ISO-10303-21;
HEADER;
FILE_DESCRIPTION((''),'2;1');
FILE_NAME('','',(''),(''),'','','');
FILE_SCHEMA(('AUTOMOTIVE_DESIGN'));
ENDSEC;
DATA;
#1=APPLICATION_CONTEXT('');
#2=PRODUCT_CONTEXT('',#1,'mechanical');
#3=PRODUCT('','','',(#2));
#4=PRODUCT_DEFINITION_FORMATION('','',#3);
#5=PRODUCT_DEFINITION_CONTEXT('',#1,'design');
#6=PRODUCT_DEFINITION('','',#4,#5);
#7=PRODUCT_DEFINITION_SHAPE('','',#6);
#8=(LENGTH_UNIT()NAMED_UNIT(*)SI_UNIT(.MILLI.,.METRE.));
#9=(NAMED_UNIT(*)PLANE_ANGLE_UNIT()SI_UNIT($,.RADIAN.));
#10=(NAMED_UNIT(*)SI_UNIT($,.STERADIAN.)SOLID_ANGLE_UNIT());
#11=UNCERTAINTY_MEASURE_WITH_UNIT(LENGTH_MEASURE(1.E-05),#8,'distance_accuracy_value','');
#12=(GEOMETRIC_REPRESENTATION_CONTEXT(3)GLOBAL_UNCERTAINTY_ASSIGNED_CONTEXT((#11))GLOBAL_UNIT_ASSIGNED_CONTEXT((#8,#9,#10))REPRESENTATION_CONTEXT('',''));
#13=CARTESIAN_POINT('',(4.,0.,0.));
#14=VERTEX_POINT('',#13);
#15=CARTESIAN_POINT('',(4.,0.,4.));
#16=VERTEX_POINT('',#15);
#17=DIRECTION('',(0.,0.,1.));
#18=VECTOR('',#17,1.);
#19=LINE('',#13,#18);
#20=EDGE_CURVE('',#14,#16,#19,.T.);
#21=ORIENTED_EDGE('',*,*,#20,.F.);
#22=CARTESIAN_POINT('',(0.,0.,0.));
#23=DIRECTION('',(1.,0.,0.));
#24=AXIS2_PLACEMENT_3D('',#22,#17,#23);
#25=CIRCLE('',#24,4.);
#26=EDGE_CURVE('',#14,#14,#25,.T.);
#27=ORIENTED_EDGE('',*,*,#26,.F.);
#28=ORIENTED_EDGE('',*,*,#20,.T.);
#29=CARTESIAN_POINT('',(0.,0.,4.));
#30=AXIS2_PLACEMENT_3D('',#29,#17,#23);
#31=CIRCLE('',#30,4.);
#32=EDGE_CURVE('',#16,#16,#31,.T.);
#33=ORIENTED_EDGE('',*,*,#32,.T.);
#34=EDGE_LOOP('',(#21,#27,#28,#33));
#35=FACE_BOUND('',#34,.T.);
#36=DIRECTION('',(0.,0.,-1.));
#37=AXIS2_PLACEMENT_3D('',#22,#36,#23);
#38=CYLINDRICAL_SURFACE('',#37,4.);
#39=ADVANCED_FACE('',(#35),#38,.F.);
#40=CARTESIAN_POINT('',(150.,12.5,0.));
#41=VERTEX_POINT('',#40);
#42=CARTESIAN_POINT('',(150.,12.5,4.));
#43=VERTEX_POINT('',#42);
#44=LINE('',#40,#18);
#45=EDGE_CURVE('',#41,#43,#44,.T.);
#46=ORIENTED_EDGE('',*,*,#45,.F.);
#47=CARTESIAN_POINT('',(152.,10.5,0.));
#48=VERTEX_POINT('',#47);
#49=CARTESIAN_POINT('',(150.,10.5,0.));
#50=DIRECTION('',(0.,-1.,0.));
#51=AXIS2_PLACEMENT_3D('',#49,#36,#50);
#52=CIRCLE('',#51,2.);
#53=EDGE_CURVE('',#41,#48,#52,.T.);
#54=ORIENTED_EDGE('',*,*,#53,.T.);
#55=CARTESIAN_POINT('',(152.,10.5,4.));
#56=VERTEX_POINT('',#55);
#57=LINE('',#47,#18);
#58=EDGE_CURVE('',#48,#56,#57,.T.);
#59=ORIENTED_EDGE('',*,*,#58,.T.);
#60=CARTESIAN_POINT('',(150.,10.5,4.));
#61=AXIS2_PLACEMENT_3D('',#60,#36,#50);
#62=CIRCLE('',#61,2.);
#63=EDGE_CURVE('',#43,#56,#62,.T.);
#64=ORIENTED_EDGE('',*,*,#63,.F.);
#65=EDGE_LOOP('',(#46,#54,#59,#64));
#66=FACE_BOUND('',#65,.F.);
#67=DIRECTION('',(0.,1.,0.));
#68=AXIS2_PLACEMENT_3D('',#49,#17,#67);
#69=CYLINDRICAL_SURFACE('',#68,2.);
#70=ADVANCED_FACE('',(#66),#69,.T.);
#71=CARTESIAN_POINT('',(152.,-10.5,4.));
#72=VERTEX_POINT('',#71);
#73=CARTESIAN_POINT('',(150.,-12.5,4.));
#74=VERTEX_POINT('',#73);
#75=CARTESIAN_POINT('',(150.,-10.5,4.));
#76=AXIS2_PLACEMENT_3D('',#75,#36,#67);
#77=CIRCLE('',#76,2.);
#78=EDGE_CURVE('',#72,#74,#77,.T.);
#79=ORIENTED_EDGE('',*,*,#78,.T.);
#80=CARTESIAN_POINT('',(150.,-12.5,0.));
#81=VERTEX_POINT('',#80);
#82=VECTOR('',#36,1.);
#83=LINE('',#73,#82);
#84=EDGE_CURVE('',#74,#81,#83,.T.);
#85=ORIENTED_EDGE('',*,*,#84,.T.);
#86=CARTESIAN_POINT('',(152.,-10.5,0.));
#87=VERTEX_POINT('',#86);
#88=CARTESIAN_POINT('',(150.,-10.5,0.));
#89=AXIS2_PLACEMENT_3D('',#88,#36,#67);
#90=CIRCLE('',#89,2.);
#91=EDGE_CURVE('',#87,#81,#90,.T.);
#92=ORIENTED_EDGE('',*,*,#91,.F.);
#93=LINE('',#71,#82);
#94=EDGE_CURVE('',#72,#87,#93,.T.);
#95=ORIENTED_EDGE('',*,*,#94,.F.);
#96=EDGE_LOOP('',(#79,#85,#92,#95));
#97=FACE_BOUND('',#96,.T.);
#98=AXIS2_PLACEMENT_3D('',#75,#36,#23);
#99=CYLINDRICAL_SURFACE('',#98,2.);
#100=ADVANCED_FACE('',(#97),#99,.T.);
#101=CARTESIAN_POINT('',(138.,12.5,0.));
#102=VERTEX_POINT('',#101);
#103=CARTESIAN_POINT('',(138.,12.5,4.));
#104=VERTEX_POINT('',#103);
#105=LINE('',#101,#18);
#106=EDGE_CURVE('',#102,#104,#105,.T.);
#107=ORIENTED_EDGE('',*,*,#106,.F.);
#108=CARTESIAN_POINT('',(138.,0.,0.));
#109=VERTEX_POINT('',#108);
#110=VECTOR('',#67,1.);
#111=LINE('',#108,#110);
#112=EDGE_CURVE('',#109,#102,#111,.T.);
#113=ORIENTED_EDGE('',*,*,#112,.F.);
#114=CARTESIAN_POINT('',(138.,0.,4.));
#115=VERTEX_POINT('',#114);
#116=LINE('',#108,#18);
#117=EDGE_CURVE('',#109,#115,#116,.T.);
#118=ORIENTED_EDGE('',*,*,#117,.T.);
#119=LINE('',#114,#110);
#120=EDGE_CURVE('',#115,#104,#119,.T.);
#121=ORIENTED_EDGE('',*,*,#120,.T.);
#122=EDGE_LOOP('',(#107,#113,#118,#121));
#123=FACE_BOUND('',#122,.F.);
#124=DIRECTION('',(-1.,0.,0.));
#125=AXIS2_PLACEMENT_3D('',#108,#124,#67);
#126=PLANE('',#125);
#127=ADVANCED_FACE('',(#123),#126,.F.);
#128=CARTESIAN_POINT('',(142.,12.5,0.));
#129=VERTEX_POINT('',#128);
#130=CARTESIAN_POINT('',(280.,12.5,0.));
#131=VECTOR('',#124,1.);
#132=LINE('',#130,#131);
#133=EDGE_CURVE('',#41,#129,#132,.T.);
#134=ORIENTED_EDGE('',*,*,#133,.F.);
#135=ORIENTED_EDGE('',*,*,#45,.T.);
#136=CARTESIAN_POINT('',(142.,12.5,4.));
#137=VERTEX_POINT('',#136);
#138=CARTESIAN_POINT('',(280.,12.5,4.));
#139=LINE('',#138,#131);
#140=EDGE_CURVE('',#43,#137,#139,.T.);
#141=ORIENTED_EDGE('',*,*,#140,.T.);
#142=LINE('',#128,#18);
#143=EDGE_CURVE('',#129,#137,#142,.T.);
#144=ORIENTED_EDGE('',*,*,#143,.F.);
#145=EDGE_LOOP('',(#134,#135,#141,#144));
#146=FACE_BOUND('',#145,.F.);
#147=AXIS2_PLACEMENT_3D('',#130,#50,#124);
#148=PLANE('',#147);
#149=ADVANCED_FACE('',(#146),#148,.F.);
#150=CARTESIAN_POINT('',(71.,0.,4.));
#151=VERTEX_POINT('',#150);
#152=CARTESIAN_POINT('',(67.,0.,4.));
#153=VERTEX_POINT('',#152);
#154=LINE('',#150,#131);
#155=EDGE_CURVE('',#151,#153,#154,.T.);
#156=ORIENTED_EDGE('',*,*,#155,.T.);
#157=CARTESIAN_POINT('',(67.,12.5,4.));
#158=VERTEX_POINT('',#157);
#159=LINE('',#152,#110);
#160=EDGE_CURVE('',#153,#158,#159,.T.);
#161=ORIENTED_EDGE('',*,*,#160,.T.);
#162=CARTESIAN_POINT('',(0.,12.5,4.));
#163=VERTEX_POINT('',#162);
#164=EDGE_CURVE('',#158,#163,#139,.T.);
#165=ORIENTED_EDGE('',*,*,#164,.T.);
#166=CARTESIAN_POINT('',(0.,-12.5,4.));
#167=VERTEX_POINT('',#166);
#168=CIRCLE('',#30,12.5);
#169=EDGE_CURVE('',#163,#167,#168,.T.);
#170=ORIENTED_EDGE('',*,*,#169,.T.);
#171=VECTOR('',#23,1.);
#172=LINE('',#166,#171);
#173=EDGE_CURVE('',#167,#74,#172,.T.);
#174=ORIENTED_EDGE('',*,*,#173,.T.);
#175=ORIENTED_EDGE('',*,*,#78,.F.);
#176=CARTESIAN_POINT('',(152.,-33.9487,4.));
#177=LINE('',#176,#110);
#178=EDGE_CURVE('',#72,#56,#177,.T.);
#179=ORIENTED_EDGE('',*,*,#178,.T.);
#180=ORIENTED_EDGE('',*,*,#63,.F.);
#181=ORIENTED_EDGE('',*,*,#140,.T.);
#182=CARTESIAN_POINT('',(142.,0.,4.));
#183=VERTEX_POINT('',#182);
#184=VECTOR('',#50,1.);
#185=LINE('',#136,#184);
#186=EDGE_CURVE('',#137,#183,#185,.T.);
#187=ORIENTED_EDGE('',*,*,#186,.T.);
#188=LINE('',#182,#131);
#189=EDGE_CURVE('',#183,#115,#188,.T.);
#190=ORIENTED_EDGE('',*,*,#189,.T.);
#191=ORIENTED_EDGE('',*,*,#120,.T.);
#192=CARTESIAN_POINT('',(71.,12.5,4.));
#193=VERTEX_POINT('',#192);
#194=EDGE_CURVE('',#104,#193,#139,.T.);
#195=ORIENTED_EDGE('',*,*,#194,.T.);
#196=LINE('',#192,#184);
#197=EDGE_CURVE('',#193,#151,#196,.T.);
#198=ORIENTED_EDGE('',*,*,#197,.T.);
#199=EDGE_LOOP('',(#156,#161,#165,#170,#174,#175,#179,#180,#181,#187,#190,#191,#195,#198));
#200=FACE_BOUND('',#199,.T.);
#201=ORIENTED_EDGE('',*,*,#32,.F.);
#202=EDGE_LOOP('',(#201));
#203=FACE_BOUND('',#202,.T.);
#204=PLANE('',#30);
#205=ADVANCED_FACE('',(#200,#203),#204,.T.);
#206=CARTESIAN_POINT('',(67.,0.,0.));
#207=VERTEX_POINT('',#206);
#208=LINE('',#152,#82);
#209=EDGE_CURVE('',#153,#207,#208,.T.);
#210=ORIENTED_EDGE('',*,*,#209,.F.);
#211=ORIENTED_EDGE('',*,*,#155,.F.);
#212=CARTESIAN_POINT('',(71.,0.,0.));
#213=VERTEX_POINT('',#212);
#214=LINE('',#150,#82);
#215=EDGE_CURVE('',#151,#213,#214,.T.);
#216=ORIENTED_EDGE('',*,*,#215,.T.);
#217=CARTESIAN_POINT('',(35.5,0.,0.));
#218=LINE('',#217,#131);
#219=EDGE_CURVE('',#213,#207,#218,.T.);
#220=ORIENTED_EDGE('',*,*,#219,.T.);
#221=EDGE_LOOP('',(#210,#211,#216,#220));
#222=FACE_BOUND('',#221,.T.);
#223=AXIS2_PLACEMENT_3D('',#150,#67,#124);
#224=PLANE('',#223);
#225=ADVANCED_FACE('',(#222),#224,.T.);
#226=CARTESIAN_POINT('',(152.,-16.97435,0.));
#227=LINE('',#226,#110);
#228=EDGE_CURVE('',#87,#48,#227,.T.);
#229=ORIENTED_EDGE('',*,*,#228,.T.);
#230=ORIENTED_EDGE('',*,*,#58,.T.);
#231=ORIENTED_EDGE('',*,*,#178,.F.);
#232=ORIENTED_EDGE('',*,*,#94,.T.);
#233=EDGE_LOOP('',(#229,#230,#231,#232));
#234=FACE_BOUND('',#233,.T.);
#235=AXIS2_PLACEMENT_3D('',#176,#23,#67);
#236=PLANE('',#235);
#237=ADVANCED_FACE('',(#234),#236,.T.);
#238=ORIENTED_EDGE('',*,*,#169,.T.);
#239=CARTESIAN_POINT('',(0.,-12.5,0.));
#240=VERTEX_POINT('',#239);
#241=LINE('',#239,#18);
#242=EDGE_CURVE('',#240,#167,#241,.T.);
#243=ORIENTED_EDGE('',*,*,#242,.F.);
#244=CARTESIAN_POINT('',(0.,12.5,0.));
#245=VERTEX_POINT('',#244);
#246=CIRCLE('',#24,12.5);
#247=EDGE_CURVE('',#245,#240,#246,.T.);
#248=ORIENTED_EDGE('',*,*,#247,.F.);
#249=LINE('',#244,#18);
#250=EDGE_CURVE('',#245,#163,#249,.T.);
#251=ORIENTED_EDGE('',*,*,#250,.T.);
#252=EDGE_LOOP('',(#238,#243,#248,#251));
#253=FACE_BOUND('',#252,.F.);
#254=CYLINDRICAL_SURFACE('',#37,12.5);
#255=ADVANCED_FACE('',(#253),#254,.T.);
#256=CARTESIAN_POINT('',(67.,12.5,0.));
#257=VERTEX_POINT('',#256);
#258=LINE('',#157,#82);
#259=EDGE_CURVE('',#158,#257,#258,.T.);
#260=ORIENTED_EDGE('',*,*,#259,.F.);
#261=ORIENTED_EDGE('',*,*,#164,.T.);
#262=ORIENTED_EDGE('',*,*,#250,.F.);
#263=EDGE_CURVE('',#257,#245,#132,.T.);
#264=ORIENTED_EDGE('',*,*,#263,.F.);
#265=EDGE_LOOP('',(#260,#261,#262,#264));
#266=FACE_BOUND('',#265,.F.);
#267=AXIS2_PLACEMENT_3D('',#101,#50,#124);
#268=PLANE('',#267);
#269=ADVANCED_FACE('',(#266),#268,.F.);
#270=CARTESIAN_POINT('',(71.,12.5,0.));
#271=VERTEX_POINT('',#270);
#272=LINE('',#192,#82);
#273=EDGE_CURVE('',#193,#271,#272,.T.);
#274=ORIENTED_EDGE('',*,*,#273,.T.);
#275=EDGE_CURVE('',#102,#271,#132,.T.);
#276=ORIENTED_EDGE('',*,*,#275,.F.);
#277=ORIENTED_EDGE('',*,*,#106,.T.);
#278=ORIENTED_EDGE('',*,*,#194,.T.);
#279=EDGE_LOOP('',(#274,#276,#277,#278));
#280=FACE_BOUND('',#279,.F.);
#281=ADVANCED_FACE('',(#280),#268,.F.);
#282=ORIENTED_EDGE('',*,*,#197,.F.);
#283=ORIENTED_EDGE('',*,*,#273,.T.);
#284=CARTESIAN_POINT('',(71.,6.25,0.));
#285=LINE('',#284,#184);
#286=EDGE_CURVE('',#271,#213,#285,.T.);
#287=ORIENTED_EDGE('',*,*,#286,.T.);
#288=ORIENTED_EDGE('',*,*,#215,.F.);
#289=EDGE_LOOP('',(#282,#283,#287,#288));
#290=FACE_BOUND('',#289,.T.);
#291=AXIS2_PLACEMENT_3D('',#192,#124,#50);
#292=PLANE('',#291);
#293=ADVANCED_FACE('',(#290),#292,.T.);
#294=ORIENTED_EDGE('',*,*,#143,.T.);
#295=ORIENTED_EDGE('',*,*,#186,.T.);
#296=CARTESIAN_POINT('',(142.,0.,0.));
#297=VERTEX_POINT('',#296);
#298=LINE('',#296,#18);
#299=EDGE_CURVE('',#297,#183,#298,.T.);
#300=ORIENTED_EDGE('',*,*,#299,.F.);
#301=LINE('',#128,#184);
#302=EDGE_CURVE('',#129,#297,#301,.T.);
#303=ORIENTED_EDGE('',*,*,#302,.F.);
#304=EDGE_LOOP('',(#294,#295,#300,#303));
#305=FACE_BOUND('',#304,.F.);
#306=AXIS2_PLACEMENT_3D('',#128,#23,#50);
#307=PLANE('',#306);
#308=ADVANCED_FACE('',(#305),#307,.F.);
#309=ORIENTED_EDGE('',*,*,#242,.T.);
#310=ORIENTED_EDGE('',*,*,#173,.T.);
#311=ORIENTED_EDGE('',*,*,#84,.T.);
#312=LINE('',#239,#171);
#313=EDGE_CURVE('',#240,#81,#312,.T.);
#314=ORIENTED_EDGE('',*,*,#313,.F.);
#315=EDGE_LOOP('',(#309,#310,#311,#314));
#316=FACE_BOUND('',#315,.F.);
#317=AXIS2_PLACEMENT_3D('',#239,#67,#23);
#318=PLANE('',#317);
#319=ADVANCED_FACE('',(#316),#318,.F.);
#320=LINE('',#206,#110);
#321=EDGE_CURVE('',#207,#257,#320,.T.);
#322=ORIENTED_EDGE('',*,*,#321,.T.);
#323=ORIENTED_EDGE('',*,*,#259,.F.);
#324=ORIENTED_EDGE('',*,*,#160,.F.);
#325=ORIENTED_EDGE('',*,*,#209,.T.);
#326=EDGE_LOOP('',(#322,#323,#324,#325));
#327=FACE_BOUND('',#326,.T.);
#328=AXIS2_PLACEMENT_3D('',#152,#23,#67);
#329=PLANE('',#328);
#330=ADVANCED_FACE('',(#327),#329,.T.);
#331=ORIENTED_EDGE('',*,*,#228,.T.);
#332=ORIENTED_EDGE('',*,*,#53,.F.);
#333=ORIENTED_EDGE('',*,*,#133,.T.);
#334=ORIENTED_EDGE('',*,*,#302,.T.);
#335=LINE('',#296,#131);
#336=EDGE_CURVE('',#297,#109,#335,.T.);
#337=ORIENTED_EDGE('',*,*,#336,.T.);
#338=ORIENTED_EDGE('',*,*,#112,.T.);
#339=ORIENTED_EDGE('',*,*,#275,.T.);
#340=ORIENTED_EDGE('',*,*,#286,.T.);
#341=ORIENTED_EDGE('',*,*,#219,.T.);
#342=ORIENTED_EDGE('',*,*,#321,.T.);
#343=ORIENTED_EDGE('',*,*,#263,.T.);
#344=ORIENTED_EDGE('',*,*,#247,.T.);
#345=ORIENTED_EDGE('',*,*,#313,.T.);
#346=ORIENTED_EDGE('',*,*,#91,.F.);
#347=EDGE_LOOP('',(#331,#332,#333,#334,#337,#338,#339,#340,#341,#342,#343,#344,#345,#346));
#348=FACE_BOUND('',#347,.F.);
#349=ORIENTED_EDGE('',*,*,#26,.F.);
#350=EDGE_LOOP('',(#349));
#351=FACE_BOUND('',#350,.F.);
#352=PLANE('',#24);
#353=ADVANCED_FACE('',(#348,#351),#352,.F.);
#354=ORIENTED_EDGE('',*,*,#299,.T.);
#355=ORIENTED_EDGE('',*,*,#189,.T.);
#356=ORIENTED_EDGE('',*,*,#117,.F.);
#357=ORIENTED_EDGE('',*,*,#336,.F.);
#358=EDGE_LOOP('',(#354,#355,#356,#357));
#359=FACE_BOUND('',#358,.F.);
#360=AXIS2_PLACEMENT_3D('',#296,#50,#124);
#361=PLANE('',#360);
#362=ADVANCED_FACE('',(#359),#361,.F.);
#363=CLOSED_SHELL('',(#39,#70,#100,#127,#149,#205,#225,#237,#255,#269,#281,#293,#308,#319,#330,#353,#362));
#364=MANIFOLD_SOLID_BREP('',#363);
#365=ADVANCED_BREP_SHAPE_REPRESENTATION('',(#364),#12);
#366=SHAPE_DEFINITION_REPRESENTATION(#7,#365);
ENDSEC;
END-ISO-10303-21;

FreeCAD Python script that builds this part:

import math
import FreeCAD as App
import Part
import Sketcher


def edges_at(feature, points):
    """Names of the edges that pass closest to the given points."""
    edges = feature.Shape.Edges
    near = lambda p: min(range(len(edges)), key=lambda i: edges[i].distToShape(Part.Vertex(*p))[0])
    return sorted({f"Edge{near(p) + 1}" for p in points})

doc = App.newDocument("Part")
body = doc.addObject("PartDesign::Body", "Body")

sketch1 = body.newObject("Sketcher::SketchObject", "Sketch")
sketch1.AttachmentSupport = (doc.getObject("XY_Plane"), [""])
sketch1.MapMode = "FlatFace"
sketch1.addGeometry(Part.LineSegment(App.Vector(0, -12.5, 0), App.Vector(280, -12.5, 0)), False)
sketch1.addGeometry(Part.ArcOfCircle(Part.Circle(App.Vector(280, 0, 0), App.Vector(0, 0, 1), 12.5), math.radians(-90), math.radians(90)), False)
sketch1.addGeometry(Part.LineSegment(App.Vector(280, 12.5, 0), App.Vector(142, 12.5, 0)), False)
sketch1.addGeometry(Part.LineSegment(App.Vector(142, 12.5, 0), App.Vector(142, 0, 0)), False)
sketch1.addGeometry(Part.LineSegment(App.Vector(142, 0, 0), App.Vector(138, 0, 0)), False)
sketch1.addGeometry(Part.LineSegment(App.Vector(138, 0, 0), App.Vector(138, 12.5, 0)), False)
sketch1.addGeometry(Part.LineSegment(App.Vector(138, 12.5, 0), App.Vector(0, 12.5, 0)), False)
sketch1.addGeometry(Part.ArcOfCircle(Part.Circle(App.Vector(0, 0, 0), App.Vector(0, 0, 1), 12.5), math.radians(90), math.radians(270)), False)
sketch1.addGeometry(Part.Circle(App.Vector(0, 0, 0), App.Vector(0, 0, 1), 4), False)
sketch1.addGeometry(Part.Circle(App.Vector(280, 7, 0), App.Vector(0, 0, 1), 1.5), False)
sketch1.addGeometry(Part.Circle(App.Vector(280, -7, 0), App.Vector(0, 0, 1), 1.5), False)
sketch1.addGeometry(Part.Circle(App.Vector(287, 0, 0), App.Vector(0, 0, 1), 1.5), False)
sketch1.addGeometry(Part.Circle(App.Vector(280, 0, 0), App.Vector(0, 0, 1), 3), False)
sketch1.addConstraint(Sketcher.Constraint("Tangent", 0, 2, 1, 1))
sketch1.addConstraint(Sketcher.Constraint("Tangent", 1, 2, 2, 1))
sketch1.addConstraint(Sketcher.Constraint("Coincident", 2, 2, 3, 1))
sketch1.addConstraint(Sketcher.Constraint("Coincident", 3, 2, 4, 1))
sketch1.addConstraint(Sketcher.Constraint("Coincident", 4, 2, 5, 1))
sketch1.addConstraint(Sketcher.Constraint("Coincident", 5, 2, 6, 1))
sketch1.addConstraint(Sketcher.Constraint("Tangent", 6, 2, 7, 1))
sketch1.addConstraint(Sketcher.Constraint("Tangent", 7, 2, 0, 1))
sketch1.addConstraint(Sketcher.Constraint("Horizontal", 0))
sketch1.addConstraint(Sketcher.Constraint("Horizontal", 2))
sketch1.addConstraint(Sketcher.Constraint("Vertical", 3))
sketch1.addConstraint(Sketcher.Constraint("Horizontal", 4))
sketch1.addConstraint(Sketcher.Constraint("Vertical", 5))
sketch1.addConstraint(Sketcher.Constraint("Horizontal", 6))
sketch1.addConstraint(Sketcher.Constraint("Coincident", 7, 3, -1, 1))
sketch1.addConstraint(Sketcher.Constraint("Coincident", 8, 3, -1, 1))
sketch1.addConstraint(Sketcher.Constraint("Coincident", 12, 3, 1, 3))
sketch1.addConstraint(Sketcher.Constraint("Equal", 1, 7))
sketch1.addConstraint(Sketcher.Constraint("Equal", 9, 10))
sketch1.addConstraint(Sketcher.Constraint("Equal", 10, 11))
sketch1.addConstraint(Sketcher.Constraint("Symmetric", 9, 3, 10, 3, -1))
sketch1.addConstraint(Sketcher.Constraint("PointOnObject", 11, 3, -1))
sketch1.addConstraint(Sketcher.Constraint("PointOnObject", 3, 2, -1))
sketch1.addConstraint(Sketcher.Constraint("Vertical", 1, 3, 9, 3))
sketch1.addConstraint(Sketcher.Constraint("Equal", 2, 6))
sketch1.addConstraint(Sketcher.Constraint("Diameter", 8, 8.0))
sketch1.addConstraint(Sketcher.Constraint("Diameter", 9, 3.0))
sketch1.addConstraint(Sketcher.Constraint("Diameter", 12, 6.0))
sketch1.addConstraint(Sketcher.Constraint("Radius", 1, 12.5))
sketch1.addConstraint(Sketcher.Constraint("DistanceX", 0, 1, 0, 2, 280.0))
sketch1.addConstraint(Sketcher.Constraint("DistanceX", 4, 2, 4, 1, 4.0))
sketch1.addConstraint(Sketcher.Constraint("DistanceY", 10, 3, 9, 3, 14.0))
sketch1.addConstraint(Sketcher.Constraint("DistanceX", -1, 1, 11, 3, 287.0))
pad1 = body.newObject("PartDesign::Pad", "Pad")
pad1.Profile = sketch1
pad1.Length = 4

sketch2 = body.newObject("Sketcher::SketchObject", "Sketch001")
sketch2.AttachmentSupport = (doc.getObject("XY_Plane"), [""])
sketch2.MapMode = "FlatFace"
sketch2.AttachmentOffset = App.Placement(App.Vector(0, 0, 4), App.Rotation())
sketch2.addGeometry(Part.LineSegment(App.Vector(359, 23, 0), App.Vector(152, 23, 0)), False)
sketch2.addGeometry(Part.LineSegment(App.Vector(152, 23, 0), App.Vector(152, -34, 0)), False)
sketch2.addGeometry(Part.LineSegment(App.Vector(152, -34, 0), App.Vector(359, -34, 0)), False)
sketch2.addGeometry(Part.LineSegment(App.Vector(359, -34, 0), App.Vector(359, 23, 0)), False)
sketch2.addConstraint(Sketcher.Constraint("Coincident", 0, 2, 1, 1))
sketch2.addConstraint(Sketcher.Constraint("Coincident", 1, 2, 2, 1))
sketch2.addConstraint(Sketcher.Constraint("Coincident", 2, 2, 3, 1))
sketch2.addConstraint(Sketcher.Constraint("Coincident", 3, 2, 0, 1))
sketch2.addConstraint(Sketcher.Constraint("Horizontal", 0))
sketch2.addConstraint(Sketcher.Constraint("Vertical", 1))
sketch2.addConstraint(Sketcher.Constraint("Horizontal", 2))
sketch2.addConstraint(Sketcher.Constraint("Vertical", 3))
sketch2.addConstraint(Sketcher.Constraint("DistanceX", -1, 1, 0, 2, 152.0))
sketch2.addConstraint(Sketcher.Constraint("DistanceX", 0, 2, 0, 1, 207.143))
sketch2.addConstraint(Sketcher.Constraint("DistanceY", 1, 2, 1, 1, 57.3834))
sketch2.addConstraint(Sketcher.Constraint("DistanceY", -1, 1, 0, 2, 23.4347))
pocket1 = body.newObject("PartDesign::Pocket", "Pocket")
pocket1.Profile = sketch2
pocket1.Length = 10
doc.recompute()

fillet = body.newObject("PartDesign::Fillet", "Fillet")
fillet.Base = (pocket1, edges_at(pocket1, [(152, 12.5, 2), (152, -12.5, 2)]))
fillet.Radius = 2

sketch3 = body.newObject("Sketcher::SketchObject", "Sketch002")
sketch3.AttachmentSupport = (doc.getObject("XY_Plane"), [""])
sketch3.MapMode = "FlatFace"
sketch3.AttachmentOffset = App.Placement(App.Vector(0, 0, 4), App.Rotation())
sketch3.addGeometry(Part.LineSegment(App.Vector(71, 0, 0), App.Vector(71, 12.5, 0)), False)
sketch3.addGeometry(Part.LineSegment(App.Vector(71, 12.5, 0), App.Vector(67, 12.5, 0)), False)
sketch3.addGeometry(Part.LineSegment(App.Vector(67, 12.5, 0), App.Vector(67, 0, 0)), False)
sketch3.addGeometry(Part.LineSegment(App.Vector(67, 0, 0), App.Vector(71, 0, 0)), False)
sketch3.addConstraint(Sketcher.Constraint("Coincident", 0, 2, 1, 1))
sketch3.addConstraint(Sketcher.Constraint("Coincident", 1, 2, 2, 1))
sketch3.addConstraint(Sketcher.Constraint("Coincident", 2, 2, 3, 1))
sketch3.addConstraint(Sketcher.Constraint("Coincident", 3, 2, 0, 1))
sketch3.addConstraint(Sketcher.Constraint("Vertical", 0))
sketch3.addConstraint(Sketcher.Constraint("Horizontal", 1))
sketch3.addConstraint(Sketcher.Constraint("Vertical", 2))
sketch3.addConstraint(Sketcher.Constraint("Horizontal", 3))
sketch3.addConstraint(Sketcher.Constraint("PointOnObject", 2, 2, -1))
sketch3.addConstraint(Sketcher.Constraint("DistanceX", 1, 2, 1, 1, 4.0))
sketch3.addConstraint(Sketcher.Constraint("DistanceY", 0, 1, 0, 2, 12.5))
sketch3.addConstraint(Sketcher.Constraint("DistanceX", -1, 1, 0, 2, 71.0))
pocket2 = body.newObject("PartDesign::Pocket", "Pocket001")
pocket2.Profile = sketch3
pocket2.Length = 10

doc.recompute()
